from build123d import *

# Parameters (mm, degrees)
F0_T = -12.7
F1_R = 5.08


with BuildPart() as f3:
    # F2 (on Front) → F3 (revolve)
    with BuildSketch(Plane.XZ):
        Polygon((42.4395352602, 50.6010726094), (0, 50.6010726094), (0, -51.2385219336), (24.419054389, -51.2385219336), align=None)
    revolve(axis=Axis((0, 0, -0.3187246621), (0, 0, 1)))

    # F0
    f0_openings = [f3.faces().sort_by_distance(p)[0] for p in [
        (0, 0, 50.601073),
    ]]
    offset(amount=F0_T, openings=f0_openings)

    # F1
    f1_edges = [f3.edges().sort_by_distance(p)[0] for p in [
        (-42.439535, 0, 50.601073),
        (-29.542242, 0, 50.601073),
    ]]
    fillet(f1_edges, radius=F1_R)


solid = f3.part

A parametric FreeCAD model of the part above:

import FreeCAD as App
import Part
import Sketcher
from FreeCAD import Vector
Q = App.Units.Quantity


def edges_at(feature, points):
    """Names of the edges that pass closest to the given points."""
    edges = feature.Shape.Edges
    near = lambda p: min(range(len(edges)), key=lambda i: edges[i].distToShape(Part.Vertex(*p))[0])
    return sorted({f"Edge{near(p) + 1}" for p in points})


def faces_at(feature, points):
    """Names of the faces that lie closest to the given points."""
    faces = feature.Shape.Faces
    near = lambda p: min(range(len(faces)), key=lambda i: faces[i].distToShape(Part.Vertex(*p))[0])
    return sorted({f"Face{near(p) + 1}" for p in points})


def add_polygon(sketch, points):
    """Adds a closed chain of lines whose ends are joined by coincident constraints."""
    first, n = sketch.GeometryCount, len(points)
    for a, b in zip(points, points[1:] + points[:1]):
        sketch.addGeometry(Part.LineSegment(App.Vector(*a, 0), App.Vector(*b, 0)), False)
    for i in range(n):
        sketch.addConstraint(Sketcher.Constraint("Coincident", first + i, 2, first + (i + 1) % n, 1))

doc = App.newDocument("Part")
body = doc.addObject("PartDesign::Body", "Body")

# Sketch on XZ plane
sketch1 = body.newObject("Sketcher::SketchObject", "Sketch")
sketch1.AttachmentSupport = (doc.getObject("XZ_Plane"), [""])
sketch1.MapMode = "FlatFace"
add_polygon(sketch1, [(42.439535, 50.601073), (0, 50.601073), (0, -51.238522), (24.419054, -51.238522)])  # lines 0-3
sketch1.addConstraint(Sketcher.Constraint("Horizontal", 0))
sketch1.addConstraint(Sketcher.Constraint("Vertical", 1))
sketch1.addConstraint(Sketcher.Constraint("Horizontal", 2))
sketch1.addConstraint(Sketcher.Constraint("PointOnObject", 0, 2, -2))
sketch1.addConstraint(Sketcher.Constraint("DistanceX", 0, 2, 0, 1, 42.439535))
sketch1.addConstraint(Sketcher.Constraint("DistanceX", 2, 1, 2, 2, 24.419054))
sketch1.addConstraint(Sketcher.Constraint("DistanceY", 1, 2, 1, 1, 101.839595))
sketch1.addConstraint(Sketcher.Constraint("DistanceY", 1, 2, -1, 1, 51.238522))
revolution = body.newObject("PartDesign::Revolution", "Revolution")
revolution.Profile = sketch1
revolution.ReferenceAxis = (sketch1, ["V_Axis"])
revolution.Angle = 360
doc.recompute()

thickness = body.newObject("PartDesign::Thickness", "Thickness")
thickness.Base = (revolution, faces_at(revolution, [(0, 0, 50.601)]))
thickness.Value = Q("0.5 in")
thickness.Reversed = True
thickness.Join = "Arc"
doc.recompute()

fillet = body.newObject("PartDesign::Fillet", "Fillet")
fillet.Base = (thickness, edges_at(thickness, [(-42.44, 0, 50.601), (-29.542, 0, 50.601)]))
fillet.Radius = Q("0.2 in")

doc.recompute()
